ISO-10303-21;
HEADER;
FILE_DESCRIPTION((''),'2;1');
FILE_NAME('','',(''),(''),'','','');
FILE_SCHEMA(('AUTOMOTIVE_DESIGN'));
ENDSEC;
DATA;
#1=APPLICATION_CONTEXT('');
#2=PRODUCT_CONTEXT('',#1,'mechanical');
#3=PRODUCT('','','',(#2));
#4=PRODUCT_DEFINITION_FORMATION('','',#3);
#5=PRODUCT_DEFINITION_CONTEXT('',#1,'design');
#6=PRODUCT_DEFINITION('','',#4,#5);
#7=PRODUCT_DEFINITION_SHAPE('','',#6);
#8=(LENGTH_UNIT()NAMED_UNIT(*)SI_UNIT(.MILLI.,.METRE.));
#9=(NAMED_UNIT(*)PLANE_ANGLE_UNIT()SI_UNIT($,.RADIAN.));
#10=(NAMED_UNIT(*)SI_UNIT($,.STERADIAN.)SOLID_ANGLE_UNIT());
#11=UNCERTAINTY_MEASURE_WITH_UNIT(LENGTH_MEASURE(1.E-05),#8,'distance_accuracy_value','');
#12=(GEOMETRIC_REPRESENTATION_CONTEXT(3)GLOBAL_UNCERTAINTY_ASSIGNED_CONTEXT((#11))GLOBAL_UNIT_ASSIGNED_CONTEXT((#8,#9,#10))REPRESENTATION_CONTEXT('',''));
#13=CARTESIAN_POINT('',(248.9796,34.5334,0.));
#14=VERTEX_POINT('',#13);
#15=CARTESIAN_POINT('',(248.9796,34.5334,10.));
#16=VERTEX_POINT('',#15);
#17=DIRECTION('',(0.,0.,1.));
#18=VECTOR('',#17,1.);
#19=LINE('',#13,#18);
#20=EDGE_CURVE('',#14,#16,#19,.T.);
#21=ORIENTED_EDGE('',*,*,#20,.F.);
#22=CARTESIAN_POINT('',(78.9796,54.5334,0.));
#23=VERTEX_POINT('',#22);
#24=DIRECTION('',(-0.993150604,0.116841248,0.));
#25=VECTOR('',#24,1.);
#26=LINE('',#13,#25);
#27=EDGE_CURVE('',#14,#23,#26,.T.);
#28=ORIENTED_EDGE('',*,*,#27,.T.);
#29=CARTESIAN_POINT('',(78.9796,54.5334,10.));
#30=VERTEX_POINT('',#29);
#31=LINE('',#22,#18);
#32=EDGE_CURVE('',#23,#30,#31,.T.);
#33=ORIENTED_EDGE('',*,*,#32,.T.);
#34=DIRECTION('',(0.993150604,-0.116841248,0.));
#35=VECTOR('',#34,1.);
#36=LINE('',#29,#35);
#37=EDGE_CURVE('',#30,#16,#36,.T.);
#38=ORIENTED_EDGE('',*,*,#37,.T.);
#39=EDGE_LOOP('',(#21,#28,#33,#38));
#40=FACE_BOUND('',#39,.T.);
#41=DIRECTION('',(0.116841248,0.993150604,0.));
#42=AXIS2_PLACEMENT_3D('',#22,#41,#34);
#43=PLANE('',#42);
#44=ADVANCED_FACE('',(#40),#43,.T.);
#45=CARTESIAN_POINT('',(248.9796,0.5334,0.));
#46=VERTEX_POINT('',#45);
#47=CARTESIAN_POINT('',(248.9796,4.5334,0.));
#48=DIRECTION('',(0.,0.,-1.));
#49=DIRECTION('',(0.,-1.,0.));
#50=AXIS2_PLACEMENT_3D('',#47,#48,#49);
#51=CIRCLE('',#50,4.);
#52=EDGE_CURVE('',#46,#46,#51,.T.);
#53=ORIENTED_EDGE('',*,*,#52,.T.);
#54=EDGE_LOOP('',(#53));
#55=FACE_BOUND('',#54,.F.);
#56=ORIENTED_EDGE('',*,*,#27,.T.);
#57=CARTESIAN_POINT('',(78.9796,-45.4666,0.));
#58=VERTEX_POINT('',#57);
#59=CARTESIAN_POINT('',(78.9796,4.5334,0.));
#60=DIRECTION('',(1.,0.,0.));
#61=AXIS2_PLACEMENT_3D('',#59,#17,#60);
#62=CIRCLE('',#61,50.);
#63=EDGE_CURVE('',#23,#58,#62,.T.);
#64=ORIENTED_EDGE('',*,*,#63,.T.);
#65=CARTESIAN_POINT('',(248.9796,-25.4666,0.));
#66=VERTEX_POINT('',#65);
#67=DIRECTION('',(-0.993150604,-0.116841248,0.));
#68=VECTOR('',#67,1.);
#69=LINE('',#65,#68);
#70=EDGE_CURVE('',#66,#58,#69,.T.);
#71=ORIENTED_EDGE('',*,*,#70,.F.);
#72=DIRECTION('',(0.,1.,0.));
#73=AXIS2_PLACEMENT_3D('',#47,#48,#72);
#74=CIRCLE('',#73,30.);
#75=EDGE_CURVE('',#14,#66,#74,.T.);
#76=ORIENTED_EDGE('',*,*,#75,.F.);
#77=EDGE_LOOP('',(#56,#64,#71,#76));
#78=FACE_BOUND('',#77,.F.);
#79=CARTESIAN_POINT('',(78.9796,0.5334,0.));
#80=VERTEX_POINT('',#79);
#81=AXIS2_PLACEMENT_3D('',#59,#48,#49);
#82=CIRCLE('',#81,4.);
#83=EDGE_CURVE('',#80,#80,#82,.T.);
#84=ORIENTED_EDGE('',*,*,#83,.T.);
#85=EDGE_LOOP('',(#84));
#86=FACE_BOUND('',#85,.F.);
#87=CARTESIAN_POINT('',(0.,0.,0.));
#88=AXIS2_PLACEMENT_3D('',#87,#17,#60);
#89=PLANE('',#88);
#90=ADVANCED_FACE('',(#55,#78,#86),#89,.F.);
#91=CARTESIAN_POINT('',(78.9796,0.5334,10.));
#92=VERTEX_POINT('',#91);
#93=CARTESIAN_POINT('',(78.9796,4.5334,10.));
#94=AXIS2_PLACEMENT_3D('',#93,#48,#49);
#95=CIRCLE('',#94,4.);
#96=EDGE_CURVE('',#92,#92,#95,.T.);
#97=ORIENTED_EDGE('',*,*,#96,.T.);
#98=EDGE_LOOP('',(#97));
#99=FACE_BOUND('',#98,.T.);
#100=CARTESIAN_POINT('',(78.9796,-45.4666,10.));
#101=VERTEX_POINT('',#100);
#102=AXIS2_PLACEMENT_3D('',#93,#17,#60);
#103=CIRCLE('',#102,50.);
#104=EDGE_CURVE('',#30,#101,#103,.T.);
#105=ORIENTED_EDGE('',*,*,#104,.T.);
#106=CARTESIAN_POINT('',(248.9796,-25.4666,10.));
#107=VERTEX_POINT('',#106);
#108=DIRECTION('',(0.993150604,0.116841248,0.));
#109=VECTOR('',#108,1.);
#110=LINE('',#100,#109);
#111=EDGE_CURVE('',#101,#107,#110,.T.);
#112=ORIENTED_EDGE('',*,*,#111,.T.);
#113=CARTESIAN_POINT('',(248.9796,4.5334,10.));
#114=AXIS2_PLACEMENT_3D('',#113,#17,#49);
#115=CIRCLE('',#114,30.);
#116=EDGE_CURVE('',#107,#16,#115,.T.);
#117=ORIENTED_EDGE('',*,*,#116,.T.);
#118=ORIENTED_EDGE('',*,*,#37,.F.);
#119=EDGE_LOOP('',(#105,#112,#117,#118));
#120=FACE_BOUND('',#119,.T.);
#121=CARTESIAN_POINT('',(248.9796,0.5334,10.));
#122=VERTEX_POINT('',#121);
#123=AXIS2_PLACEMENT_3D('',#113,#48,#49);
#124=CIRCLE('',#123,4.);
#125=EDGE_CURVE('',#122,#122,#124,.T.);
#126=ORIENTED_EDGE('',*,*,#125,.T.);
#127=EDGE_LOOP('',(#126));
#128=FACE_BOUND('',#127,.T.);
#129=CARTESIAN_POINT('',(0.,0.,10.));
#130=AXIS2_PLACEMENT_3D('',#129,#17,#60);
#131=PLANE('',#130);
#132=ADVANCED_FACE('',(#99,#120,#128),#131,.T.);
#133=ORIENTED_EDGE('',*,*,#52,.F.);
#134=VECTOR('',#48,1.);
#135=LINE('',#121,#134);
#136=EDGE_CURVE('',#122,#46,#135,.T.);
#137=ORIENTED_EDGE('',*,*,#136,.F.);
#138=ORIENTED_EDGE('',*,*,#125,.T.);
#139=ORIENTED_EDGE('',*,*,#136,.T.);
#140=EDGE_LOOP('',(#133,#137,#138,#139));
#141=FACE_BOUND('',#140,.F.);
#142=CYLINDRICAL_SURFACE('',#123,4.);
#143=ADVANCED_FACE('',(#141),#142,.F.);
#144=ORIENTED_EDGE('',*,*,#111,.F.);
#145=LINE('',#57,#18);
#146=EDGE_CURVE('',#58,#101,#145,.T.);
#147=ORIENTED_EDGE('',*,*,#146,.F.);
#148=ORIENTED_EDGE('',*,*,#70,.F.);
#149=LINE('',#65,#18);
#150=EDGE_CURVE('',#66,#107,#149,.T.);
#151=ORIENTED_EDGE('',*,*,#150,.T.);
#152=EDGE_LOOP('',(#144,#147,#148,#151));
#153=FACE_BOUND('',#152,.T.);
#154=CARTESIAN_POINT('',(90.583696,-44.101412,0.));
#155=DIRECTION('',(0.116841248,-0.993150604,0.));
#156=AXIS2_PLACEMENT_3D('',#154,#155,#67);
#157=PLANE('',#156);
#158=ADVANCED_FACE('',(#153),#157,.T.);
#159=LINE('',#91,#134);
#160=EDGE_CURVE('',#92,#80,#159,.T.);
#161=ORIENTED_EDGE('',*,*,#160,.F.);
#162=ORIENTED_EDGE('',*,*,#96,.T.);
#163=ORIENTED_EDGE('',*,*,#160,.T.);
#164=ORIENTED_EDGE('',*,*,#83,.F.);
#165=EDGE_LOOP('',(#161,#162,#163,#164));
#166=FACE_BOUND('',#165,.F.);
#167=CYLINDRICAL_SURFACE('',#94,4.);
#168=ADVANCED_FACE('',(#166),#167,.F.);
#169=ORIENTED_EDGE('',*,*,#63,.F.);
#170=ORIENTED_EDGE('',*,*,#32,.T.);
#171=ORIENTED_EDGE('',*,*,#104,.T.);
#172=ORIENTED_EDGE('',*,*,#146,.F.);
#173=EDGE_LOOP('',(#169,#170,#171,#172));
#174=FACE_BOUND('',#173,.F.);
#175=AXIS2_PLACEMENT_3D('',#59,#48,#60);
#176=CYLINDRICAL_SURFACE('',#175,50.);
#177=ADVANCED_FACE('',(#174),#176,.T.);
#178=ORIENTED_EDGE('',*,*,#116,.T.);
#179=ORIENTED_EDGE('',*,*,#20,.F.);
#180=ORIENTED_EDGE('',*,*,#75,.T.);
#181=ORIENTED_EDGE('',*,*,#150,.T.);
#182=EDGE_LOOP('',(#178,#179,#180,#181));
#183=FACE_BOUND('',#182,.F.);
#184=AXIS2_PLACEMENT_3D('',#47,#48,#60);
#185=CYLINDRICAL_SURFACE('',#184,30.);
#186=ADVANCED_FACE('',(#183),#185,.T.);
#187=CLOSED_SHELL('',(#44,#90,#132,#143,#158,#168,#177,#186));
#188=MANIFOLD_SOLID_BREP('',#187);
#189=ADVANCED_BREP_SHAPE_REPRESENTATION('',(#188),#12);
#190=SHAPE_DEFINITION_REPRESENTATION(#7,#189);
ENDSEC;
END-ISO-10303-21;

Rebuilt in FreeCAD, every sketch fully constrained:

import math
import FreeCAD as App
import Part
import Sketcher
Q = App.Units.Quantity

doc = App.newDocument("Part")
body = doc.addObject("PartDesign::Body", "Body")

sketch1 = body.newObject("Sketcher::SketchObject", "Sketch")
sketch1.AttachmentSupport = (doc.getObject("XY_Plane"), [""])
sketch1.MapMode = "FlatFace"
sketch1.addGeometry(Part.ArcOfCircle(Part.Circle(App.Vector(79, 5, 0), App.Vector(0, 0, 1), 50), math.radians(90), math.radians(270)), False)
sketch1.addGeometry(Part.LineSegment(App.Vector(79, -45, 0), App.Vector(249, -25, 0)), False)
sketch1.addGeometry(Part.ArcOfCircle(Part.Circle(App.Vector(249, 5, 0), App.Vector(0, 0, 1), 30), math.radians(-90), math.radians(90)), False)
sketch1.addGeometry(Part.LineSegment(App.Vector(249, 35, 0), App.Vector(79, 55, 0)), False)
sketch1.addConstraint(Sketcher.Constraint("Coincident", 0, 2, 1, 1))
sketch1.addConstraint(Sketcher.Constraint("Coincident", 1, 2, 2, 1))
sketch1.addConstraint(Sketcher.Constraint("Coincident", 2, 2, 3, 1))
sketch1.addConstraint(Sketcher.Constraint("Coincident", 3, 2, 0, 1))
sketch1.addConstraint(Sketcher.Constraint("Horizontal", 0, 3, 2, 3))
sketch1.addConstraint(Sketcher.Constraint("Vertical", 2, 3, 1, 2))
sketch1.addConstraint(Sketcher.Constraint("Vertical", 1, 2, 2, 2))
sketch1.addConstraint(Sketcher.Constraint("Vertical", 0, 2, 3, 2))
sketch1.addConstraint(Sketcher.Constraint("Radius", 0, Q("50 mm")))
sketch1.addConstraint(Sketcher.Constraint("Radius", 2, Q("30 mm")))
sketch1.addConstraint(Sketcher.Constraint("DistanceX", 0, 3, 2, 3, Q("170 mm")))
sketch1.addConstraint(Sketcher.Constraint("DistanceX", 0, 2, 2, 3, Q("170 mm")))
sketch1.addConstraint(Sketcher.Constraint("DistanceX", -1, 1, 0, 3, Q("78.9796 mm")))
sketch1.addConstraint(Sketcher.Constraint("DistanceY", -1, 1, 0, 3, Q("4.5334 mm")))
pad1 = body.newObject("PartDesign::Pad", "Pad")
pad1.Profile = sketch1
pad1.Length = 10

sketch2 = body.newObject("Sketcher::SketchObject", "Sketch001")
sketch2.AttachmentSupport = (doc.getObject("XY_Plane"), [""])
sketch2.MapMode = "FlatFace"
sketch2.AttachmentOffset = App.Placement(App.Vector(0, 0, 10), App.Rotation())
sketch2.addGeometry(Part.Circle(App.Vector(79, 4.5, 0), App.Vector(0, 0, 1), 4), False)
sketch2.addGeometry(Part.Circle(App.Vector(249, 4.5, 0), App.Vector(0, 0, 1), 4), False)
sketch2.addConstraint(Sketcher.Constraint("Equal", 0, 1))
sketch2.addConstraint(Sketcher.Constraint("Horizontal", 0, 3, 1, 3))
sketch2.addConstraint(Sketcher.Constraint("Diameter", 0, Q("8 mm")))
sketch2.addConstraint(Sketcher.Constraint("DistanceX", 0, 3, 1, 3, Q("170 mm")))
sketch2.addConstraint(Sketcher.Constraint("DistanceX", -1, 1, 0, 3, Q("78.9796 mm")))
sketch2.addConstraint(Sketcher.Constraint("DistanceY", -1, 1, 0, 3, Q("4.5334 mm")))
doc.recompute()
hole = body.newObject("PartDesign::Hole", "Hole")
hole.Profile = sketch2
hole.ThreadType = "None"
hole.Diameter = 8
hole.DepthType = "ThroughAll"

doc.recompute()
